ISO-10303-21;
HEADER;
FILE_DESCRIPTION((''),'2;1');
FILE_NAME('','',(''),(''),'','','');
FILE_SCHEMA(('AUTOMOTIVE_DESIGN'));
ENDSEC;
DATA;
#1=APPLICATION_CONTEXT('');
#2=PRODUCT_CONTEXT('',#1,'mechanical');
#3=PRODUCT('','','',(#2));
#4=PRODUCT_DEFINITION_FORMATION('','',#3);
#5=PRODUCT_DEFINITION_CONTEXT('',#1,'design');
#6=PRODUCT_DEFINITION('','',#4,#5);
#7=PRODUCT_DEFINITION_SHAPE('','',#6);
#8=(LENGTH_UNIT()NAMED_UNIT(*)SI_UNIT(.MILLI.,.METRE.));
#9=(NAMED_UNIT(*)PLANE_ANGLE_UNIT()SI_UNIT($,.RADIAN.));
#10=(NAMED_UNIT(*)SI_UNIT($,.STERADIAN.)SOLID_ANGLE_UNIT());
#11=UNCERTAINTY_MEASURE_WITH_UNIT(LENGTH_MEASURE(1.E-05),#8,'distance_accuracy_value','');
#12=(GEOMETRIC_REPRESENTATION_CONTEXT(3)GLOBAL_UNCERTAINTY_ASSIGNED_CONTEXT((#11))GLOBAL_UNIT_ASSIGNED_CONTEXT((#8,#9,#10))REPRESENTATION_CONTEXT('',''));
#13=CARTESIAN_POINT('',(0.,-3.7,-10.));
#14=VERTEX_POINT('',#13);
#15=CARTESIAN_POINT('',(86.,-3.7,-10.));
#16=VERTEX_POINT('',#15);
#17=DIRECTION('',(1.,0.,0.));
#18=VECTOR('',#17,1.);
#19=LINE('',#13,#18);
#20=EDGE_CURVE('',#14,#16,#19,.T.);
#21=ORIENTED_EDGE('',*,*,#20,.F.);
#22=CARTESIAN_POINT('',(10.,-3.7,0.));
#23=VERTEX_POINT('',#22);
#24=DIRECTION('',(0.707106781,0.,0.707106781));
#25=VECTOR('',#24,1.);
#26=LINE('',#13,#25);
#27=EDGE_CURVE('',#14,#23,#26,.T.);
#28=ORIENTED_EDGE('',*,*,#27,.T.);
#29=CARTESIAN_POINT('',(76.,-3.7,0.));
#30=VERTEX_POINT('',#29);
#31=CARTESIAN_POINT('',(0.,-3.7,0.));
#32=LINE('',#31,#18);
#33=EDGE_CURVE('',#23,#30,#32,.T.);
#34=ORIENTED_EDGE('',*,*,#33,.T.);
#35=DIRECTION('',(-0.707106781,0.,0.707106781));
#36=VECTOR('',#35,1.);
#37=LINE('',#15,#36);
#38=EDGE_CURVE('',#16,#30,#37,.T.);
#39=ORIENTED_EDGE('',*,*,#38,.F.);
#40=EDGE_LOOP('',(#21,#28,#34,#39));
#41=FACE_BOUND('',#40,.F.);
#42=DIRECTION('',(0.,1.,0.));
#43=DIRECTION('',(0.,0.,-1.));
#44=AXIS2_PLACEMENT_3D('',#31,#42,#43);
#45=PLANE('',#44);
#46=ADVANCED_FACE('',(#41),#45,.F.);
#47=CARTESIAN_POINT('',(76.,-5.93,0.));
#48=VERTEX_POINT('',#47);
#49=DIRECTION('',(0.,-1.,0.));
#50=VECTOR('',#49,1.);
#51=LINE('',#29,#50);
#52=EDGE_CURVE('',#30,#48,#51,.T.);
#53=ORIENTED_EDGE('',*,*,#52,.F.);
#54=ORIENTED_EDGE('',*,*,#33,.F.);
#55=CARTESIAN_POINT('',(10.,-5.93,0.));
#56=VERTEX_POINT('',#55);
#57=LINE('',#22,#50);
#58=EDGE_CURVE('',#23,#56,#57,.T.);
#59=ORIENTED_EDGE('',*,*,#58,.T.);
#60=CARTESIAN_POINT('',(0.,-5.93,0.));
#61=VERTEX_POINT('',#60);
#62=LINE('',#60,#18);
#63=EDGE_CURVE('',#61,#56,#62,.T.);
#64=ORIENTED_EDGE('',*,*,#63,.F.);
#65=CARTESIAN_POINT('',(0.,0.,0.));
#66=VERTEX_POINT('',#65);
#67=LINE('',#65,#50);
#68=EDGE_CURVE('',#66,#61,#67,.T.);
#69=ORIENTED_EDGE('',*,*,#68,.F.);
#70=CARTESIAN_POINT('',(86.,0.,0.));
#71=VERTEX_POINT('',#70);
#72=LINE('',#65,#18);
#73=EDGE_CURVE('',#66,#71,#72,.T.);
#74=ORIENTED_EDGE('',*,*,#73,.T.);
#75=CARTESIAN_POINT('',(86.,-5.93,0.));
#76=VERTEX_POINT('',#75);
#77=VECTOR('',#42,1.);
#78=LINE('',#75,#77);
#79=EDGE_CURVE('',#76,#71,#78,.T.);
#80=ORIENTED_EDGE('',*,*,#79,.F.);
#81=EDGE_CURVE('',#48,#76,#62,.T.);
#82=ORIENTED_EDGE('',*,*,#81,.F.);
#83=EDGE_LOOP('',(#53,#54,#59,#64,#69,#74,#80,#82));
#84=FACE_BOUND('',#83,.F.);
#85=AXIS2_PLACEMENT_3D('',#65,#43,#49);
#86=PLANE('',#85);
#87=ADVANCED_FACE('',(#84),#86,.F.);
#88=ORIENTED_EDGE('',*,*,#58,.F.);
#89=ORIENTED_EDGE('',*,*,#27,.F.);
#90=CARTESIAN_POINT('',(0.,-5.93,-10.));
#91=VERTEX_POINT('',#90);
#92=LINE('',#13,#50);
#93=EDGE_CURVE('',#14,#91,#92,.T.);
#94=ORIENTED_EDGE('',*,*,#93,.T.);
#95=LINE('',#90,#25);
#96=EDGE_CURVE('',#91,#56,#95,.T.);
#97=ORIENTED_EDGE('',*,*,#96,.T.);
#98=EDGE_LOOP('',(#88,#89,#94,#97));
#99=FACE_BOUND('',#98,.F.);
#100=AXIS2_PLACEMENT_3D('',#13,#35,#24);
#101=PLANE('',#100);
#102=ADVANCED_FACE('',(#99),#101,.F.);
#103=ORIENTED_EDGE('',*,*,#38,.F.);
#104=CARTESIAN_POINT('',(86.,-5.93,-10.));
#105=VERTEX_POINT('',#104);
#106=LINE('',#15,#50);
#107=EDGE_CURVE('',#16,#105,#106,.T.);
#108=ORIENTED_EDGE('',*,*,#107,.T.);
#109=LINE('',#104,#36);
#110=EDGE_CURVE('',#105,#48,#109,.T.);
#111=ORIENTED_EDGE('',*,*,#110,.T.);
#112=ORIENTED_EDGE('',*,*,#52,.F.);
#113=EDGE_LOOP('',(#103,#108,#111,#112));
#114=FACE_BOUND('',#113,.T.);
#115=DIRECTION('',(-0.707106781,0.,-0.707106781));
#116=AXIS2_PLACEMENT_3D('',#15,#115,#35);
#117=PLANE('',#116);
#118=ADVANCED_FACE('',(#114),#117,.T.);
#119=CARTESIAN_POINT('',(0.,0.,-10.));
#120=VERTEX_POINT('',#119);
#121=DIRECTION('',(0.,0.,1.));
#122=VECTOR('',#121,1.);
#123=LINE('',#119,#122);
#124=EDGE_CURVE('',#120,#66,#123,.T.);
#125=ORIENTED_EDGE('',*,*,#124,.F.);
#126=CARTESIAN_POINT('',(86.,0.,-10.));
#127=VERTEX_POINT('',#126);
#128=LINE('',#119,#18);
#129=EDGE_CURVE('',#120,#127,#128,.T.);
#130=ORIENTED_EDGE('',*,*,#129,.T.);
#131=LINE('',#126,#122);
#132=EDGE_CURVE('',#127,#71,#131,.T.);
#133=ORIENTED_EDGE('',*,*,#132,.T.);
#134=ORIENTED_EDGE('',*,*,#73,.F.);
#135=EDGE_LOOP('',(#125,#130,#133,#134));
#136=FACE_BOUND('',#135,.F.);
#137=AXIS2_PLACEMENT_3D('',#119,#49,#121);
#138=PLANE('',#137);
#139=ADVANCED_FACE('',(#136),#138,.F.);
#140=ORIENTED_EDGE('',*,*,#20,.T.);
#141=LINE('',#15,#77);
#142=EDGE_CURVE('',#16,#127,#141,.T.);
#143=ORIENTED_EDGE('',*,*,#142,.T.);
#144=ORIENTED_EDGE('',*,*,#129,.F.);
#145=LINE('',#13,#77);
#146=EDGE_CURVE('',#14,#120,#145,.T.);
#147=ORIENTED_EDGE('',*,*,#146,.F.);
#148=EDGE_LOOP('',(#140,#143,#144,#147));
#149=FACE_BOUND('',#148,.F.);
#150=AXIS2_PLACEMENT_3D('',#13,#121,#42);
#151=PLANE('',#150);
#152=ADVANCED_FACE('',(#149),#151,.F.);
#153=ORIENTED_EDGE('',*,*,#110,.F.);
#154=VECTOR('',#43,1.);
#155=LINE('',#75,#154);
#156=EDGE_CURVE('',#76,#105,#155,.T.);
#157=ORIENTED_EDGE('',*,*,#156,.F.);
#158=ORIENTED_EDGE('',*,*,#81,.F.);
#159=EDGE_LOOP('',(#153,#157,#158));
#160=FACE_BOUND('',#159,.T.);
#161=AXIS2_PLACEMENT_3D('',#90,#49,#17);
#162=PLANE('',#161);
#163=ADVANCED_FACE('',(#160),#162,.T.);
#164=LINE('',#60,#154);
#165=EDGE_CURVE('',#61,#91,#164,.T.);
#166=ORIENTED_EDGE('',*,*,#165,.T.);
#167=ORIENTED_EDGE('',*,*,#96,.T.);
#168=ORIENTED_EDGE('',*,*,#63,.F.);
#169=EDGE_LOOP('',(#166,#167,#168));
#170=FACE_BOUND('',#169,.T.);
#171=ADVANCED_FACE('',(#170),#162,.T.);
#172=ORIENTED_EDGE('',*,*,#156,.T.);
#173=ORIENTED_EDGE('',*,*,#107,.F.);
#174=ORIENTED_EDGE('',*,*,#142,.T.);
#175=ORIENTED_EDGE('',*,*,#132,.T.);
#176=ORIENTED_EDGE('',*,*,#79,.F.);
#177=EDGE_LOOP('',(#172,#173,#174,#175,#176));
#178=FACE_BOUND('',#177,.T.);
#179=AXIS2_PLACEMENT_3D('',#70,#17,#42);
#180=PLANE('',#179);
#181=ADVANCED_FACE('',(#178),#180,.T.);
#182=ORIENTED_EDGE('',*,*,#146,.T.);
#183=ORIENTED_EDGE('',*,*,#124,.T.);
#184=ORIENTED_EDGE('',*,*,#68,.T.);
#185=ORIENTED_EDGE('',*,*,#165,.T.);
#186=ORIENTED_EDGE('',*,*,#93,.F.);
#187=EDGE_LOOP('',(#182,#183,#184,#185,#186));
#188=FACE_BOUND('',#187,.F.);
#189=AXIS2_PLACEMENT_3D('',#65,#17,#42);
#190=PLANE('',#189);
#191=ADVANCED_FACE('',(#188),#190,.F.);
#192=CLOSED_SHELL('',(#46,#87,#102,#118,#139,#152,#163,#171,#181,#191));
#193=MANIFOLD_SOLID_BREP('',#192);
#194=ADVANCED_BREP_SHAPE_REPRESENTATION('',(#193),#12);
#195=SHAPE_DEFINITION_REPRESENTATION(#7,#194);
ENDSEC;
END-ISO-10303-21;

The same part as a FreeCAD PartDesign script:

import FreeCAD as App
import Part
import Sketcher

V = App.Vector

doc = App.newDocument("Part")
params = doc.addObject("Spreadsheet::Sheet", "Params")
for row, (alias, value) in enumerate([
    ("sketch1_height", "10 mm"),
    ("sketch1_width", "3.7 mm"),
    ("pad1_length", "86 mm"),
    ("sketch2_width", "10 mm"),
    ("pad2_length", "2.23 mm"),
], start=1):
    params.set(f"A{row}", alias)
    params.set(f"B{row}", "=" + value)
    params.setAlias(f"B{row}", alias)

body = doc.addObject("PartDesign::Body", "Body")

sketch1 = body.newObject("Sketcher::SketchObject", "Sketch")
sketch1.AttachmentSupport = (doc.getObject("YZ_Plane"), [""])
sketch1.MapMode = "FlatFace"
sketch1.addGeometry([
    Part.LineSegment(V(0, -10, 0), V(0, 0, 0)),
    Part.LineSegment(V(0, 0, 0), V(-3.7, 0, 0)),
    Part.LineSegment(V(-3.7, 0, 0), V(-3.7, -10, 0)),
    Part.LineSegment(V(-3.7, -10, 0), V(0, -10, 0)),
], False)
sketch1.addConstraint([
    Sketcher.Constraint("Coincident", 0, 2, 1, 1),
    Sketcher.Constraint("Coincident", 1, 2, 2, 1),
    Sketcher.Constraint("Coincident", 2, 2, 3, 1),
    Sketcher.Constraint("Coincident", 3, 2, 0, 1),
    Sketcher.Constraint("Vertical", 0),
    Sketcher.Constraint("Horizontal", 1),
    Sketcher.Constraint("Vertical", 2),
    Sketcher.Constraint("Horizontal", 3),
    Sketcher.Constraint("Coincident", 0, 2, -1, 1),
    Sketcher.Constraint("DistanceY", 0, 1, 0, 2, 10.0),
    Sketcher.Constraint("DistanceX", 1, 2, 1, 1, 3.7),
])
sketch1.setExpression("Constraints[9]", "Params.sketch1_height")
sketch1.setExpression("Constraints[10]", "Params.sketch1_width")
pad1 = body.newObject("PartDesign::Pad", "Pad")
pad1.Profile = sketch1
pad1.setExpression("Length", "Params.pad1_length")

sketch2 = body.newObject("Sketcher::SketchObject", "Sketch001")
sketch2.AttachmentSupport = (doc.getObject("XZ_Plane"), [""])
sketch2.MapMode = "FlatFace"
sketch2.AttachmentOffset = App.Placement(V(0, 0, 3.7), App.Rotation())
sketch2.addGeometry([
    Part.LineSegment(V(10, 0, 0), V(0, 0, 0)),
    Part.LineSegment(V(0, 0, 0), V(0, -10, 0)),
    Part.LineSegment(V(0, -10, 0), V(10, 0, 0)),
    Part.LineSegment(V(76, 0, 0), V(86, -10, 0)),
    Part.LineSegment(V(86, -10, 0), V(86, 0, 0)),
    Part.LineSegment(V(86, 0, 0), V(76, 0, 0)),
], False)
sketch2.addConstraint([
    Sketcher.Constraint("Coincident", 0, 2, 1, 1),
    Sketcher.Constraint("Coincident", 1, 2, 2, 1),
    Sketcher.Constraint("Coincident", 2, 2, 0, 1),
    Sketcher.Constraint("Coincident", 3, 2, 4, 1),
    Sketcher.Constraint("Coincident", 4, 2, 5, 1),
    Sketcher.Constraint("Coincident", 5, 2, 3, 1),
    Sketcher.Constraint("Horizontal", 0),
    Sketcher.Constraint("Vertical", 1),
    Sketcher.Constraint("Vertical", 4),
    Sketcher.Constraint("Horizontal", 5),
    Sketcher.Constraint("Coincident", 0, 2, -1, 1),
    Sketcher.Constraint("PointOnObject", 4, 2, -1),
    Sketcher.Constraint("Perpendicular", 2, 3),
    Sketcher.Constraint("Horizontal", 1, 2, 3, 2),
    Sketcher.Constraint("Equal", 0, 5),
    Sketcher.Constraint("DistanceX", 0, 2, 0, 1, 10.0),
    Sketcher.Constraint("DistanceX", -1, 1, 3, 2, 86.0),
])
sketch2.setExpression("Constraints[15]", "Params.sketch2_width")
pad2 = body.newObject("PartDesign::Pad", "Pad001")
pad2.Profile = sketch2
pad2.setExpression("Length", "Params.pad2_length")

doc.recompute()
